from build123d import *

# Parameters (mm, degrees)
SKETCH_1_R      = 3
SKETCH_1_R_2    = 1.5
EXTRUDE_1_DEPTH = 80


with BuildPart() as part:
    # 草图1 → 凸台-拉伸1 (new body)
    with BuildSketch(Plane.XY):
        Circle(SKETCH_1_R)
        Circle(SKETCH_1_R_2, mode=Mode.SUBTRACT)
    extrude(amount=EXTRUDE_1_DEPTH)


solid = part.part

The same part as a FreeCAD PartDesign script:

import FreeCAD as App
import Part
import Sketcher

V = App.Vector

doc = App.newDocument("Part")
body = doc.addObject("PartDesign::Body", "Body")

sketch1 = body.newObject("Sketcher::SketchObject", "Sketch")
sketch1.AttachmentSupport = (doc.getObject("XY_Plane"), [""])
sketch1.MapMode = "FlatFace"
sketch1.addGeometry([
    Part.Circle(V(0, 0, 0), V(0, 0, 1), 3),
    Part.Circle(V(0, 0, 0), V(0, 0, 1), 1.5),
], False)
sketch1.addConstraint([
    Sketcher.Constraint("Coincident", 0, 3, -1, 1),
    Sketcher.Constraint("Coincident", 1, 3, -1, 1),
    Sketcher.Constraint("Diameter", 0, 6.0),
    Sketcher.Constraint("Diameter", 1, 3.0),
])
pad1 = body.newObject("PartDesign::Pad", "Pad")
pad1.Profile = sketch1
pad1.Length = 80

doc.recompute()
